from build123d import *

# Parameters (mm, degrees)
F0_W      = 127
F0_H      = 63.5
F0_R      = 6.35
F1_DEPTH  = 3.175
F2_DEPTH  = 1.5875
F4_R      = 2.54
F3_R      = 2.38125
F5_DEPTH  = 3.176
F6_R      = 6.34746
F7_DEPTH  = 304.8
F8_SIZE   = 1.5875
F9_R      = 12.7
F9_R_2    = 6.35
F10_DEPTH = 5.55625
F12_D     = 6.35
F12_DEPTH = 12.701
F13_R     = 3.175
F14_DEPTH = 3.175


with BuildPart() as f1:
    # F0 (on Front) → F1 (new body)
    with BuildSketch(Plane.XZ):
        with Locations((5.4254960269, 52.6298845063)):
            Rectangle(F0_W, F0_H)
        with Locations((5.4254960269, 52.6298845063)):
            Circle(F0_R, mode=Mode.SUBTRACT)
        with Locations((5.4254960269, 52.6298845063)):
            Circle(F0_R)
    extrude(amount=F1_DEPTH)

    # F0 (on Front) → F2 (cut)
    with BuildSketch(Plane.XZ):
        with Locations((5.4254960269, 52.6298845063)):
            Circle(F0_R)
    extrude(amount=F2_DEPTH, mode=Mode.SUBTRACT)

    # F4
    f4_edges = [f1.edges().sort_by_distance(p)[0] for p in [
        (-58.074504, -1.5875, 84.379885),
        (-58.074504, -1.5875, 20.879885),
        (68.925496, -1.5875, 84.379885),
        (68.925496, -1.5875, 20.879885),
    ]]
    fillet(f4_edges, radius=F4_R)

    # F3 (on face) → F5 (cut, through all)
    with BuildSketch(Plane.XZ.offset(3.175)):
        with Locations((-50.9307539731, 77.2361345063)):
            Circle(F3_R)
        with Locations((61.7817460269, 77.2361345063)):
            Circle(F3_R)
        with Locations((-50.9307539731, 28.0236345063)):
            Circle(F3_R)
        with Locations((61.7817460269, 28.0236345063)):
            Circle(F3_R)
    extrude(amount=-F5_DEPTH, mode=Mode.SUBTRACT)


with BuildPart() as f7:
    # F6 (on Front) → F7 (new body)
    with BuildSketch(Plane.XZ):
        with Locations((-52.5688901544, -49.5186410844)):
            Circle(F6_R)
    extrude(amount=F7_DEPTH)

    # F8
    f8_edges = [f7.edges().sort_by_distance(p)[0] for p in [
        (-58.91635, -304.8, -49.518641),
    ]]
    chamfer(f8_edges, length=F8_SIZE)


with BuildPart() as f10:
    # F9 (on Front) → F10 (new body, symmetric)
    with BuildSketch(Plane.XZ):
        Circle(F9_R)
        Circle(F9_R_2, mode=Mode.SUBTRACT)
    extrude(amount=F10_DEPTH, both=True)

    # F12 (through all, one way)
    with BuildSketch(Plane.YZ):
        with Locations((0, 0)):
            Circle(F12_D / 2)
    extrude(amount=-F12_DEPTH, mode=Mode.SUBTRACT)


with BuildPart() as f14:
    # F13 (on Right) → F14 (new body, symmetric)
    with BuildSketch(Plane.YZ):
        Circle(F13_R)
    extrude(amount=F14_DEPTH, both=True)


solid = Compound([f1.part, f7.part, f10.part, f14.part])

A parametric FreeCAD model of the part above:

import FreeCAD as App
import Part
import Sketcher

V = App.Vector
Q = App.Units.Quantity


def edges_at(feature, points):
    """Names of the edges that pass closest to the given points."""
    edges = feature.Shape.Edges
    near = lambda p: min(range(len(edges)), key=lambda i: edges[i].distToShape(Part.Vertex(*p))[0])
    return sorted({f"Edge{near(p) + 1}" for p in points})


def add_polygon(sketch, points):
    """Adds a closed chain of lines whose ends are joined by coincident constraints."""
    first, n = sketch.GeometryCount, len(points)
    for a, b in zip(points, points[1:] + points[:1]):
        sketch.addGeometry(Part.LineSegment(App.Vector(*a, 0), App.Vector(*b, 0)), False)
    for i in range(n):
        sketch.addConstraint(Sketcher.Constraint("Coincident", first + i, 2, first + (i + 1) % n, 1))

doc = App.newDocument("Part")
body = doc.addObject("PartDesign::Body", "Body")

sketch1 = doc.addObject("Sketcher::SketchObject", "Sketch")
body.addObject(sketch1)
sketch1.AttachmentSupport = (doc.XZ_Plane, [""])
sketch1.MapMode = "FlatFace"
add_polygon(sketch1, [(-58, 84), (-58, 21), (69, 21), (69, 84)])
sketch1.addConstraint([
    Sketcher.Constraint("Vertical", 0),
    Sketcher.Constraint("Horizontal", 1),
    Sketcher.Constraint("Vertical", 2),
    Sketcher.Constraint("Horizontal", 3),
    Sketcher.Constraint("DistanceX", 1, 1, 1, 2, Q("5 in")),
    Sketcher.Constraint("DistanceY", 0, 2, 0, 1, Q("2.5 in")),
    Sketcher.Constraint("DistanceX", 0, 2, -1, 1, 58.074504),
    Sketcher.Constraint("DistanceY", -1, 1, 0, 2, 20.879885),
])
pad1 = doc.addObject("PartDesign::Pad", "Pad")
body.addObject(pad1)
pad1.Profile = sketch1
pad1.Length = Q("0.125 in")

sketch2 = doc.addObject("Sketcher::SketchObject", "Sketch001")
body.addObject(sketch2)
sketch2.AttachmentSupport = (doc.XZ_Plane, [""])
sketch2.MapMode = "FlatFace"
sketch2.addGeometry(Part.Circle(V(5, 53, 0), V(0, 0, 1), 6), False)
sketch2.addConstraint([
    Sketcher.Constraint("Diameter", 0, Q("0.5 in")),
    Sketcher.Constraint("DistanceX", -1, 1, 0, 3, 5.425496),
    Sketcher.Constraint("DistanceY", -1, 1, 0, 3, 52.629885),
])
pocket1 = doc.addObject("PartDesign::Pocket", "Pocket")
body.addObject(pocket1)
pocket1.Profile = sketch2
pocket1.Length = Q("0.0625 in")
pocket1.Reversed = True
doc.recompute()

fillet = doc.addObject("PartDesign::Fillet", "Fillet")
body.addObject(fillet)
fillet.Base = (pocket1, edges_at(pocket1, [
    (-58.075, -1.587, 84.38),
    (-58.075, -1.587, 20.88),
    (68.925, -1.587, 84.38),
    (68.925, -1.587, 20.88),
]))
fillet.Radius = Q("0.1 in")

sketch3 = doc.addObject("Sketcher::SketchObject", "Sketch002")
body.addObject(sketch3)
sketch3.AttachmentSupport = (doc.XZ_Plane, [""])
sketch3.MapMode = "FlatFace"
sketch3.AttachmentOffset = App.Placement(V(0, 0, 0.125 * 25.4), App.Rotation())
sketch3.addGeometry([
    Part.Circle(V(-50.9, 77.2, 0), V(0, 0, 1), 2.4),
    Part.Circle(V(61.8, 77.2, 0), V(0, 0, 1), 2.4),
    Part.Circle(V(-50.9, 28, 0), V(0, 0, 1), 2.4),
    Part.Circle(V(61.8, 28, 0), V(0, 0, 1), 2.4),
], False)
sketch3.addConstraint([
    Sketcher.Constraint("Equal", 0, 1),
    Sketcher.Constraint("Equal", 1, 2),
    Sketcher.Constraint("Equal", 2, 3),
    Sketcher.Constraint("Horizontal", 0, 3, 1, 3),
    Sketcher.Constraint("Horizontal", 2, 3, 3, 3),
    Sketcher.Constraint("Vertical", 0, 3, 2, 3),
    Sketcher.Constraint("Vertical", 1, 3, 3, 3),
    Sketcher.Constraint("Diameter", 0, Q("0.1875 in")),
    Sketcher.Constraint("DistanceX", 0, 3, 1, 3, Q("4.4375 in")),
    Sketcher.Constraint("DistanceY", 2, 3, 0, 3, Q("1.9375 in")),
    Sketcher.Constraint("DistanceX", 0, 3, -1, 1, 50.930754),
    Sketcher.Constraint("DistanceY", -1, 1, 0, 3, 77.236135),
])
pocket2 = doc.addObject("PartDesign::Pocket", "Pocket001")
body.addObject(pocket2)
pocket2.Profile = sketch3
pocket2.Type = "ThroughAll"
body2 = doc.addObject("PartDesign::Body", "Body001")

sketch4 = doc.addObject("Sketcher::SketchObject", "Sketch003")
body2.addObject(sketch4)
sketch4.AttachmentSupport = (doc.getObject("XZ_Plane001"), [""])
sketch4.MapMode = "FlatFace"
sketch4.addGeometry(Part.Circle(V(-53, -50, 0), V(0, 0, 1), 6), False)
sketch4.addConstraint([
    Sketcher.Constraint("Diameter", 0, Q("0.4998 in")),
    Sketcher.Constraint("DistanceX", 0, 3, -1, 1, 52.56889),
    Sketcher.Constraint("DistanceY", 0, 3, -1, 1, 49.518641),
])
pad2 = doc.addObject("PartDesign::Pad", "Pad001")
body2.addObject(pad2)
pad2.Profile = sketch4
pad2.Length = Q("12 in")
doc.recompute()

chamfer = doc.addObject("PartDesign::Chamfer", "Chamfer")
body2.addObject(chamfer)
chamfer.Base = (pad2, edges_at(pad2, [(-58.916, -304.8, -49.519)]))
chamfer.Size = Q("0.0625 in")
body3 = doc.addObject("PartDesign::Body", "Body002")

sketch5 = doc.addObject("Sketcher::SketchObject", "Sketch004")
body3.addObject(sketch5)
sketch5.AttachmentSupport = (doc.getObject("XZ_Plane002"), [""])
sketch5.MapMode = "FlatFace"
sketch5.addGeometry([
    Part.Circle(V(0, 0, 0), V(0, 0, 1), 13),
    Part.Circle(V(0, 0, 0), V(0, 0, 1), 6),
], False)
sketch5.addConstraint([
    Sketcher.Constraint("Coincident", 0, 3, -1, 1),
    Sketcher.Constraint("Coincident", 1, 3, -1, 1),
    Sketcher.Constraint("Diameter", 0, Q("1 in")),
    Sketcher.Constraint("Diameter", 1, Q("0.5 in")),
])
pad3 = doc.addObject("PartDesign::Pad", "Pad002")
body3.addObject(pad3)
pad3.Profile = sketch5
pad3.Length = Q("0.4375 in")
pad3.Midplane = True

sketch6 = doc.addObject("Sketcher::SketchObject", "Sketch005")
body3.addObject(sketch6)
sketch6.AttachmentSupport = (doc.getObject("YZ_Plane002"), [""])
sketch6.MapMode = "FlatFace"
sketch6.addGeometry(Part.Circle(V(0, 0, 0), V(0, 0, 1), 3.2), False)
sketch6.addConstraint([
    Sketcher.Constraint("Coincident", 0, 3, -1, 1),
    Sketcher.Constraint("Diameter", 0, Q("0.25 in")),
])
pocket3 = doc.addObject("PartDesign::Pocket", "Pocket002")
body3.addObject(pocket3)
pocket3.Profile = sketch6
pocket3.Type = "ThroughAll"
body4 = doc.addObject("PartDesign::Body", "Body003")

sketch7 = doc.addObject("Sketcher::SketchObject", "Sketch006")
body4.addObject(sketch7)
sketch7.AttachmentSupport = (doc.getObject("YZ_Plane003"), [""])
sketch7.MapMode = "FlatFace"
sketch7.addGeometry(Part.Circle(V(0, 0, 0), V(0, 0, 1), 3.2), False)
sketch7.addConstraint([
    Sketcher.Constraint("Coincident", 0, 3, -1, 1),
    Sketcher.Constraint("Diameter", 0, Q("0.25 in")),
])
pad4 = doc.addObject("PartDesign::Pad", "Pad003")
body4.addObject(pad4)
pad4.Profile = sketch7
pad4.Length = Q("0.25 in")
pad4.Midplane = True

doc.recompute()
